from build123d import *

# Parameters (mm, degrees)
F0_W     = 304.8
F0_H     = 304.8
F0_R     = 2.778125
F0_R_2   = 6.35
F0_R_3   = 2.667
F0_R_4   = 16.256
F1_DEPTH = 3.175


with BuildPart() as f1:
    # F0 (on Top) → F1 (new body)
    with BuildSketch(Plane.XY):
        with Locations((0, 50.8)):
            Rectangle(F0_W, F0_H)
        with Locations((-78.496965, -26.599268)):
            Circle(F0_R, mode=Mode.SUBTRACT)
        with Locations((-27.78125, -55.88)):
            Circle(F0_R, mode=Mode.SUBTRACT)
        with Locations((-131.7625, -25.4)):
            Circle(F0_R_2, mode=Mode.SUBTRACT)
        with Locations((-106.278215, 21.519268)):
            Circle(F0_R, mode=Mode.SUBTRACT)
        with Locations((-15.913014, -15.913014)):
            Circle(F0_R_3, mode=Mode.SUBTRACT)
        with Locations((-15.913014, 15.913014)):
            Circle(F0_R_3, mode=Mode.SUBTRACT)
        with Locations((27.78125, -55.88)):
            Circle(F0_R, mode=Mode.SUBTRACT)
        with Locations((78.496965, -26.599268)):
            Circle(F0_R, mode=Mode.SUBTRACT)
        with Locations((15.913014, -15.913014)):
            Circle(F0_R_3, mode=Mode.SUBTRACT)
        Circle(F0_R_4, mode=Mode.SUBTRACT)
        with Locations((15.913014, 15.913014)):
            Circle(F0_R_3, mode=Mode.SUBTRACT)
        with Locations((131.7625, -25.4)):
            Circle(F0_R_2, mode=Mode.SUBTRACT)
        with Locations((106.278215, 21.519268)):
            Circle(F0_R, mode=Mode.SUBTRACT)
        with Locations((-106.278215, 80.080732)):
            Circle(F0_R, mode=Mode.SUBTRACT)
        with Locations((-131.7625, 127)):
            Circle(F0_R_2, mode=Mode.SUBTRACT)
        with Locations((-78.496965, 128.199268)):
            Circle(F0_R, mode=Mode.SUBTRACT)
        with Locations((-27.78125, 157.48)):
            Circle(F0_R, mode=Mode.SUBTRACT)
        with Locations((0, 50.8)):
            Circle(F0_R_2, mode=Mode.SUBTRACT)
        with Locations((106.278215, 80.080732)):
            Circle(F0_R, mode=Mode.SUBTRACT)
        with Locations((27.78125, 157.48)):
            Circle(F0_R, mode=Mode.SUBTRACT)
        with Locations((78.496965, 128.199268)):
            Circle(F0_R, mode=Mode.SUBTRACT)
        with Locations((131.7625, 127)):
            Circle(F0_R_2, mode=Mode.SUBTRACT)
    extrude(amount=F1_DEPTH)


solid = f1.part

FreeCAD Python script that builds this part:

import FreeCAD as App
import Part
import Sketcher
from FreeCAD import Vector
Q = App.Units.Quantity

doc = App.newDocument("Part")
body = doc.addObject("PartDesign::Body", "Body")

# Sketch on XY plane
sketch1 = doc.addObject("Sketcher::SketchObject", "Sketch")
body.addObject(sketch1)
sketch1.AttachmentSupport = (doc.XY_Plane, [""])
sketch1.MapMode = "FlatFace"
sketch1.addGeometry([
    Part.LineSegment(Vector(-152.4, 203.2, 0), Vector(-152.4, -101.6, 0)),  # 0
    Part.LineSegment(Vector(-152.4, -101.6, 0), Vector(152.4, -101.6, 0)),  # 1
    Part.LineSegment(Vector(152.4, -101.6, 0), Vector(152.4, 203.2, 0)),  # 2
    Part.LineSegment(Vector(152.4, 203.2, 0), Vector(-152.4, 203.2, 0)),  # 3
    Part.Circle(Vector(-131.7625, -25.4, 0), Vector(0, 0, 1), 6.35),  # 4
    Part.Circle(Vector(-78.496965, -26.599268, 0), Vector(0, 0, 1), 2.778125),  # 5
    Part.Circle(Vector(-27.78125, -55.88, 0), Vector(0, 0, 1), 2.778125),  # 6
    Part.Circle(Vector(-15.913014, -15.913014, 0), Vector(0, 0, 1), 2.667),  # 7
    Part.Circle(Vector(-106.278215, 21.519268, 0), Vector(0, 0, 1), 2.778125),  # 8
    Part.Circle(Vector(-15.913014, 15.913014, 0), Vector(0, 0, 1), 2.667),  # 9
    Part.Circle(Vector(27.78125, -55.88, 0), Vector(0, 0, 1), 2.778125),  # 10
    Part.Circle(Vector(15.913014, -15.913014, 0), Vector(0, 0, 1), 2.667),  # 11
    Part.Circle(Vector(78.496965, -26.599268, 0), Vector(0, 0, 1), 2.778125),  # 12
    Part.Circle(Vector(131.7625, -25.4, 0), Vector(0, 0, 1), 6.35),  # 13
    Part.Circle(Vector(0, 0, 0), Vector(0, 0, 1), 16.256),  # 14
    Part.Circle(Vector(15.913014, 15.913014, 0), Vector(0, 0, 1), 2.667),  # 15
    Part.Circle(Vector(106.278215, 21.519268, 0), Vector(0, 0, 1), 2.778125),  # 16
    Part.Circle(Vector(-106.278215, 80.080732, 0), Vector(0, 0, 1), 2.778125),  # 17
    Part.Circle(Vector(-131.7625, 127, 0), Vector(0, 0, 1), 6.35),  # 18
    Part.Circle(Vector(-78.496965, 128.199268, 0), Vector(0, 0, 1), 2.778125),  # 19
    Part.Circle(Vector(-27.78125, 157.48, 0), Vector(0, 0, 1), 2.778125),  # 20
    Part.Circle(Vector(0, 50.8, 0), Vector(0, 0, 1), 6.35),  # 21
    Part.Circle(Vector(106.278215, 80.080732, 0), Vector(0, 0, 1), 2.778125),  # 22
    Part.Circle(Vector(27.78125, 157.48, 0), Vector(0, 0, 1), 2.778125),  # 23
    Part.Circle(Vector(78.496965, 128.199268, 0), Vector(0, 0, 1), 2.778125),  # 24
    Part.Circle(Vector(131.7625, 127, 0), Vector(0, 0, 1), 6.35),  # 25
], False)
sketch1.addConstraint([
    Sketcher.Constraint("Coincident", 0, 2, 1, 1),
    Sketcher.Constraint("Coincident", 1, 2, 2, 1),
    Sketcher.Constraint("Coincident", 2, 2, 3, 1),
    Sketcher.Constraint("Coincident", 3, 2, 0, 1),
    Sketcher.Constraint("Vertical", 0),
    Sketcher.Constraint("Horizontal", 1),
    Sketcher.Constraint("Vertical", 2),
    Sketcher.Constraint("Horizontal", 3),
    Sketcher.Constraint("Coincident", 14, 3, -1, 1),
    Sketcher.Constraint("Equal", 5, 6),
    Sketcher.Constraint("Equal", 6, 8),
    Sketcher.Constraint("Equal", 7, 9),
    Sketcher.Constraint("Equal", 8, 10),
    Sketcher.Constraint("Equal", 9, 11),
    Sketcher.Constraint("Equal", 10, 12),
    Sketcher.Constraint("Equal", 4, 13),
    Sketcher.Constraint("Equal", 11, 15),
    Sketcher.Constraint("Equal", 12, 16),
    Sketcher.Constraint("Equal", 16, 17),
    Sketcher.Constraint("Equal", 13, 18),
    Sketcher.Constraint("Equal", 17, 19),
    Sketcher.Constraint("Equal", 19, 20),
    Sketcher.Constraint("Equal", 18, 21),
    Sketcher.Constraint("Equal", 20, 22),
    Sketcher.Constraint("Equal", 22, 23),
    Sketcher.Constraint("Equal", 23, 24),
    Sketcher.Constraint("Equal", 21, 25),
    Sketcher.Constraint("Symmetric", 9, 3, 11, 3, -1, 1),
    Sketcher.Constraint("Symmetric", 7, 3, 15, 3, -1, 1),
    Sketcher.Constraint("Symmetric", 6, 3, 10, 3, -2),
    Sketcher.Constraint("Symmetric", 7, 3, 11, 3, -2),
    Sketcher.Constraint("Symmetric", 5, 3, 12, 3, -2),
    Sketcher.Constraint("Symmetric", 4, 3, 13, 3, -2),
    Sketcher.Constraint("Symmetric", 8, 3, 16, 3, -2),
    Sketcher.Constraint("Symmetric", 17, 3, 22, 3, -2),
    Sketcher.Constraint("Symmetric", 20, 3, 23, 3, -2),
    Sketcher.Constraint("Symmetric", 19, 3, 24, 3, -2),
    Sketcher.Constraint("Symmetric", 18, 3, 25, 3, -2),
    Sketcher.Constraint("PointOnObject", 21, 3, -2),
    Sketcher.Constraint("Vertical", 8, 3, 17, 3),
    Sketcher.Constraint("Vertical", 4, 3, 18, 3),
    Sketcher.Constraint("Vertical", 5, 3, 19, 3),
    Sketcher.Constraint("Vertical", 6, 3, 20, 3),
    Sketcher.Constraint("Equal", 3, 0),
    Sketcher.Constraint("Diameter", 4, Q("0.5 in")),
    Sketcher.Constraint("Diameter", 7, Q("0.21 in")),
    Sketcher.Constraint("Diameter", 14, Q("1.28 in")),
    Sketcher.Constraint("DistanceX", 1, 1, 1, 2, Q("12 in")),
    Sketcher.Constraint("Diameter", 5, Q("0.21875 in")),
    Sketcher.Constraint("DistanceY", 4, 3, -1, 1, Q("1 in")),
    Sketcher.Constraint("DistanceY", -1, 1, 18, 3, Q("5 in")),
    Sketcher.Constraint("DistanceY", -1, 1, 21, 3, Q("2 in")),
    Sketcher.Constraint("DistanceX", 0, 2, -1, 1, Q("6 in")),
    Sketcher.Constraint("DistanceY", 0, 2, -1, 1, Q("4 in")),
    Sketcher.Constraint("DistanceY", 6, 3, -1, 1, Q("2.2 in")),
    Sketcher.Constraint("DistanceY", -1, 1, 20, 3, Q("6.2 in")),
    Sketcher.Constraint("DistanceY", 5, 3, 17, 3, Q("4.2 in")),
    Sketcher.Constraint("DistanceY", 8, 3, 19, 3, Q("4.2 in")),
    Sketcher.Constraint("DistanceX", 4, 3, -1, 1, Q("5.1875 in")),
    Sketcher.Constraint("DistanceX", 6, 3, -1, 1, Q("1.09375 in")),
    Sketcher.Constraint("DistanceX", 8, 3, 5, 3, Q("1.09375 in")),
    Sketcher.Constraint("DistanceX", 8, 3, 7, 3, Q("90.365201 mm")),
    Sketcher.Constraint("DistanceY", -1, 1, 8, 3, Q("21.519268 mm")),
    Sketcher.Constraint("DistanceY", -1, 1, 17, 3, Q("80.080732 mm")),
    Sketcher.Constraint("DistanceY", 7, 3, 9, 3, Q("31.826028 mm")),
    Sketcher.Constraint("DistanceX", 7, 3, 11, 3, Q("31.826028 mm")),
])
pad1 = doc.addObject("PartDesign::Pad", "Pad")
body.addObject(pad1)
pad1.Profile = sketch1
pad1.Length = Q("0.125 in")

doc.recompute()
